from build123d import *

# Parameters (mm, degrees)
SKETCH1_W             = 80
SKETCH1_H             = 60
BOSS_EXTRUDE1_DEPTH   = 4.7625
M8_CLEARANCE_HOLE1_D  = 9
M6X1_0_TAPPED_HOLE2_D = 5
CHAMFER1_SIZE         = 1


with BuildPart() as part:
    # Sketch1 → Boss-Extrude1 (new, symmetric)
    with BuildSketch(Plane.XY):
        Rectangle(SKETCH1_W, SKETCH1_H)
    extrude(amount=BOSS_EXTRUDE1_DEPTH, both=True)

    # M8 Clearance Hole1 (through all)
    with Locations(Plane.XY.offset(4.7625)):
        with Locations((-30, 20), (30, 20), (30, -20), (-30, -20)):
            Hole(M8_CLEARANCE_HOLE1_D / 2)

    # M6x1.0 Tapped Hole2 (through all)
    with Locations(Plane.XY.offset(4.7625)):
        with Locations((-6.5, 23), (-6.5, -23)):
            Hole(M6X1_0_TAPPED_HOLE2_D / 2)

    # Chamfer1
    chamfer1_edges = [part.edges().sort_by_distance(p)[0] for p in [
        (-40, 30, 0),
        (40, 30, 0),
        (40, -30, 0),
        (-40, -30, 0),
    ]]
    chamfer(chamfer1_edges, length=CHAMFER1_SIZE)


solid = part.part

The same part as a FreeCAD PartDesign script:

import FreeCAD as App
import Part
import Sketcher

V = App.Vector
Q = App.Units.Quantity


def edges_at(feature, points):
    """Names of the edges that pass closest to the given points."""
    edges = feature.Shape.Edges
    near = lambda p: min(range(len(edges)), key=lambda i: edges[i].distToShape(Part.Vertex(*p))[0])
    return sorted({f"Edge{near(p) + 1}" for p in points})

doc = App.newDocument("Part")
body = doc.addObject("PartDesign::Body", "Body")

sketch1 = body.newObject("Sketcher::SketchObject", "Sketch")
sketch1.AttachmentSupport = (doc.getObject("XY_Plane"), [""])
sketch1.MapMode = "FlatFace"
sketch1.addGeometry([
    Part.LineSegment(V(-40, 30, 0), V(-40, -30, 0)),
    Part.LineSegment(V(-40, -30, 0), V(40, -30, 0)),
    Part.LineSegment(V(40, -30, 0), V(40, 30, 0)),
    Part.LineSegment(V(40, 30, 0), V(-40, 30, 0)),
], False)
sketch1.addConstraint([
    Sketcher.Constraint("Coincident", 0, 2, 1, 1),
    Sketcher.Constraint("Coincident", 1, 2, 2, 1),
    Sketcher.Constraint("Coincident", 2, 2, 3, 1),
    Sketcher.Constraint("Coincident", 3, 2, 0, 1),
    Sketcher.Constraint("Vertical", 0),
    Sketcher.Constraint("Horizontal", 1),
    Sketcher.Constraint("Vertical", 2),
    Sketcher.Constraint("Horizontal", 3),
    Sketcher.Constraint("Symmetric", 0, 2, 2, 2, -1, 1),
    Sketcher.Constraint("DistanceX", 1, 1, 1, 2, Q("80 mm")),
    Sketcher.Constraint("DistanceY", 0, 2, 0, 1, Q("60 mm")),
])
pad1 = body.newObject("PartDesign::Pad", "Pad")
pad1.Profile = sketch1
pad1.Length = 9.525
pad1.Midplane = True

sketch2 = body.newObject("Sketcher::SketchObject", "Sketch001")
sketch2.AttachmentSupport = (doc.getObject("XY_Plane"), [""])
sketch2.MapMode = "FlatFace"
sketch2.AttachmentOffset = App.Placement(V(0, 0, 4.7625), App.Rotation())
sketch2.addGeometry([
    Part.Circle(V(-30, 20, 0), V(0, 0, 1), 4.5),
    Part.Circle(V(30, 20, 0), V(0, 0, 1), 4.5),
    Part.Circle(V(30, -20, 0), V(0, 0, 1), 4.5),
    Part.Circle(V(-30, -20, 0), V(0, 0, 1), 4.5),
], False)
sketch2.addConstraint([
    Sketcher.Constraint("Equal", 0, 1),
    Sketcher.Constraint("Equal", 1, 2),
    Sketcher.Constraint("Equal", 2, 3),
    Sketcher.Constraint("Symmetric", 0, 3, 2, 3, -1, 1),
    Sketcher.Constraint("Symmetric", 1, 3, 3, 3, -1, 1),
    Sketcher.Constraint("Symmetric", 0, 3, 1, 3, -2),
    Sketcher.Constraint("Diameter", 0, Q("9 mm")),
    Sketcher.Constraint("DistanceX", 0, 3, -1, 1, Q("30 mm")),
    Sketcher.Constraint("DistanceY", -1, 1, 0, 3, Q("20 mm")),
])
doc.recompute()
hole = body.newObject("PartDesign::Hole", "Hole")
hole.Profile = sketch2
hole.ThreadType = "None"
hole.Diameter = 9
hole.DepthType = "ThroughAll"

sketch3 = body.newObject("Sketcher::SketchObject", "Sketch002")
sketch3.AttachmentSupport = (doc.getObject("XY_Plane"), [""])
sketch3.MapMode = "FlatFace"
sketch3.AttachmentOffset = App.Placement(V(0, 0, 4.7625), App.Rotation())
sketch3.addGeometry([
    Part.Circle(V(-6.5, 23, 0), V(0, 0, 1), 2.5),
    Part.Circle(V(-6.5, -23, 0), V(0, 0, 1), 2.5),
], False)
sketch3.addConstraint([
    Sketcher.Constraint("Equal", 0, 1),
    Sketcher.Constraint("Symmetric", 0, 3, 1, 3, -1),
    Sketcher.Constraint("Diameter", 0, Q("5 mm")),
    Sketcher.Constraint("DistanceY", -1, 1, 0, 3, Q("23 mm")),
    Sketcher.Constraint("DistanceX", 0, 3, -1, 1, Q("6.5 mm")),
])
doc.recompute()
hole2 = body.newObject("PartDesign::Hole", "Hole001")
hole2.Profile = sketch3
hole2.ThreadType = "None"
hole2.Diameter = 5
hole2.DepthType = "ThroughAll"
doc.recompute()

chamfer = body.newObject("PartDesign::Chamfer", "Chamfer")
chamfer.Base = (hole2, edges_at(hole2, [
    (-40, 30, 0),
    (40, 30, 0),
    (40, -30, 0),
    (-40, -30, 0),
]))
chamfer.Size = 1

doc.recompute()
